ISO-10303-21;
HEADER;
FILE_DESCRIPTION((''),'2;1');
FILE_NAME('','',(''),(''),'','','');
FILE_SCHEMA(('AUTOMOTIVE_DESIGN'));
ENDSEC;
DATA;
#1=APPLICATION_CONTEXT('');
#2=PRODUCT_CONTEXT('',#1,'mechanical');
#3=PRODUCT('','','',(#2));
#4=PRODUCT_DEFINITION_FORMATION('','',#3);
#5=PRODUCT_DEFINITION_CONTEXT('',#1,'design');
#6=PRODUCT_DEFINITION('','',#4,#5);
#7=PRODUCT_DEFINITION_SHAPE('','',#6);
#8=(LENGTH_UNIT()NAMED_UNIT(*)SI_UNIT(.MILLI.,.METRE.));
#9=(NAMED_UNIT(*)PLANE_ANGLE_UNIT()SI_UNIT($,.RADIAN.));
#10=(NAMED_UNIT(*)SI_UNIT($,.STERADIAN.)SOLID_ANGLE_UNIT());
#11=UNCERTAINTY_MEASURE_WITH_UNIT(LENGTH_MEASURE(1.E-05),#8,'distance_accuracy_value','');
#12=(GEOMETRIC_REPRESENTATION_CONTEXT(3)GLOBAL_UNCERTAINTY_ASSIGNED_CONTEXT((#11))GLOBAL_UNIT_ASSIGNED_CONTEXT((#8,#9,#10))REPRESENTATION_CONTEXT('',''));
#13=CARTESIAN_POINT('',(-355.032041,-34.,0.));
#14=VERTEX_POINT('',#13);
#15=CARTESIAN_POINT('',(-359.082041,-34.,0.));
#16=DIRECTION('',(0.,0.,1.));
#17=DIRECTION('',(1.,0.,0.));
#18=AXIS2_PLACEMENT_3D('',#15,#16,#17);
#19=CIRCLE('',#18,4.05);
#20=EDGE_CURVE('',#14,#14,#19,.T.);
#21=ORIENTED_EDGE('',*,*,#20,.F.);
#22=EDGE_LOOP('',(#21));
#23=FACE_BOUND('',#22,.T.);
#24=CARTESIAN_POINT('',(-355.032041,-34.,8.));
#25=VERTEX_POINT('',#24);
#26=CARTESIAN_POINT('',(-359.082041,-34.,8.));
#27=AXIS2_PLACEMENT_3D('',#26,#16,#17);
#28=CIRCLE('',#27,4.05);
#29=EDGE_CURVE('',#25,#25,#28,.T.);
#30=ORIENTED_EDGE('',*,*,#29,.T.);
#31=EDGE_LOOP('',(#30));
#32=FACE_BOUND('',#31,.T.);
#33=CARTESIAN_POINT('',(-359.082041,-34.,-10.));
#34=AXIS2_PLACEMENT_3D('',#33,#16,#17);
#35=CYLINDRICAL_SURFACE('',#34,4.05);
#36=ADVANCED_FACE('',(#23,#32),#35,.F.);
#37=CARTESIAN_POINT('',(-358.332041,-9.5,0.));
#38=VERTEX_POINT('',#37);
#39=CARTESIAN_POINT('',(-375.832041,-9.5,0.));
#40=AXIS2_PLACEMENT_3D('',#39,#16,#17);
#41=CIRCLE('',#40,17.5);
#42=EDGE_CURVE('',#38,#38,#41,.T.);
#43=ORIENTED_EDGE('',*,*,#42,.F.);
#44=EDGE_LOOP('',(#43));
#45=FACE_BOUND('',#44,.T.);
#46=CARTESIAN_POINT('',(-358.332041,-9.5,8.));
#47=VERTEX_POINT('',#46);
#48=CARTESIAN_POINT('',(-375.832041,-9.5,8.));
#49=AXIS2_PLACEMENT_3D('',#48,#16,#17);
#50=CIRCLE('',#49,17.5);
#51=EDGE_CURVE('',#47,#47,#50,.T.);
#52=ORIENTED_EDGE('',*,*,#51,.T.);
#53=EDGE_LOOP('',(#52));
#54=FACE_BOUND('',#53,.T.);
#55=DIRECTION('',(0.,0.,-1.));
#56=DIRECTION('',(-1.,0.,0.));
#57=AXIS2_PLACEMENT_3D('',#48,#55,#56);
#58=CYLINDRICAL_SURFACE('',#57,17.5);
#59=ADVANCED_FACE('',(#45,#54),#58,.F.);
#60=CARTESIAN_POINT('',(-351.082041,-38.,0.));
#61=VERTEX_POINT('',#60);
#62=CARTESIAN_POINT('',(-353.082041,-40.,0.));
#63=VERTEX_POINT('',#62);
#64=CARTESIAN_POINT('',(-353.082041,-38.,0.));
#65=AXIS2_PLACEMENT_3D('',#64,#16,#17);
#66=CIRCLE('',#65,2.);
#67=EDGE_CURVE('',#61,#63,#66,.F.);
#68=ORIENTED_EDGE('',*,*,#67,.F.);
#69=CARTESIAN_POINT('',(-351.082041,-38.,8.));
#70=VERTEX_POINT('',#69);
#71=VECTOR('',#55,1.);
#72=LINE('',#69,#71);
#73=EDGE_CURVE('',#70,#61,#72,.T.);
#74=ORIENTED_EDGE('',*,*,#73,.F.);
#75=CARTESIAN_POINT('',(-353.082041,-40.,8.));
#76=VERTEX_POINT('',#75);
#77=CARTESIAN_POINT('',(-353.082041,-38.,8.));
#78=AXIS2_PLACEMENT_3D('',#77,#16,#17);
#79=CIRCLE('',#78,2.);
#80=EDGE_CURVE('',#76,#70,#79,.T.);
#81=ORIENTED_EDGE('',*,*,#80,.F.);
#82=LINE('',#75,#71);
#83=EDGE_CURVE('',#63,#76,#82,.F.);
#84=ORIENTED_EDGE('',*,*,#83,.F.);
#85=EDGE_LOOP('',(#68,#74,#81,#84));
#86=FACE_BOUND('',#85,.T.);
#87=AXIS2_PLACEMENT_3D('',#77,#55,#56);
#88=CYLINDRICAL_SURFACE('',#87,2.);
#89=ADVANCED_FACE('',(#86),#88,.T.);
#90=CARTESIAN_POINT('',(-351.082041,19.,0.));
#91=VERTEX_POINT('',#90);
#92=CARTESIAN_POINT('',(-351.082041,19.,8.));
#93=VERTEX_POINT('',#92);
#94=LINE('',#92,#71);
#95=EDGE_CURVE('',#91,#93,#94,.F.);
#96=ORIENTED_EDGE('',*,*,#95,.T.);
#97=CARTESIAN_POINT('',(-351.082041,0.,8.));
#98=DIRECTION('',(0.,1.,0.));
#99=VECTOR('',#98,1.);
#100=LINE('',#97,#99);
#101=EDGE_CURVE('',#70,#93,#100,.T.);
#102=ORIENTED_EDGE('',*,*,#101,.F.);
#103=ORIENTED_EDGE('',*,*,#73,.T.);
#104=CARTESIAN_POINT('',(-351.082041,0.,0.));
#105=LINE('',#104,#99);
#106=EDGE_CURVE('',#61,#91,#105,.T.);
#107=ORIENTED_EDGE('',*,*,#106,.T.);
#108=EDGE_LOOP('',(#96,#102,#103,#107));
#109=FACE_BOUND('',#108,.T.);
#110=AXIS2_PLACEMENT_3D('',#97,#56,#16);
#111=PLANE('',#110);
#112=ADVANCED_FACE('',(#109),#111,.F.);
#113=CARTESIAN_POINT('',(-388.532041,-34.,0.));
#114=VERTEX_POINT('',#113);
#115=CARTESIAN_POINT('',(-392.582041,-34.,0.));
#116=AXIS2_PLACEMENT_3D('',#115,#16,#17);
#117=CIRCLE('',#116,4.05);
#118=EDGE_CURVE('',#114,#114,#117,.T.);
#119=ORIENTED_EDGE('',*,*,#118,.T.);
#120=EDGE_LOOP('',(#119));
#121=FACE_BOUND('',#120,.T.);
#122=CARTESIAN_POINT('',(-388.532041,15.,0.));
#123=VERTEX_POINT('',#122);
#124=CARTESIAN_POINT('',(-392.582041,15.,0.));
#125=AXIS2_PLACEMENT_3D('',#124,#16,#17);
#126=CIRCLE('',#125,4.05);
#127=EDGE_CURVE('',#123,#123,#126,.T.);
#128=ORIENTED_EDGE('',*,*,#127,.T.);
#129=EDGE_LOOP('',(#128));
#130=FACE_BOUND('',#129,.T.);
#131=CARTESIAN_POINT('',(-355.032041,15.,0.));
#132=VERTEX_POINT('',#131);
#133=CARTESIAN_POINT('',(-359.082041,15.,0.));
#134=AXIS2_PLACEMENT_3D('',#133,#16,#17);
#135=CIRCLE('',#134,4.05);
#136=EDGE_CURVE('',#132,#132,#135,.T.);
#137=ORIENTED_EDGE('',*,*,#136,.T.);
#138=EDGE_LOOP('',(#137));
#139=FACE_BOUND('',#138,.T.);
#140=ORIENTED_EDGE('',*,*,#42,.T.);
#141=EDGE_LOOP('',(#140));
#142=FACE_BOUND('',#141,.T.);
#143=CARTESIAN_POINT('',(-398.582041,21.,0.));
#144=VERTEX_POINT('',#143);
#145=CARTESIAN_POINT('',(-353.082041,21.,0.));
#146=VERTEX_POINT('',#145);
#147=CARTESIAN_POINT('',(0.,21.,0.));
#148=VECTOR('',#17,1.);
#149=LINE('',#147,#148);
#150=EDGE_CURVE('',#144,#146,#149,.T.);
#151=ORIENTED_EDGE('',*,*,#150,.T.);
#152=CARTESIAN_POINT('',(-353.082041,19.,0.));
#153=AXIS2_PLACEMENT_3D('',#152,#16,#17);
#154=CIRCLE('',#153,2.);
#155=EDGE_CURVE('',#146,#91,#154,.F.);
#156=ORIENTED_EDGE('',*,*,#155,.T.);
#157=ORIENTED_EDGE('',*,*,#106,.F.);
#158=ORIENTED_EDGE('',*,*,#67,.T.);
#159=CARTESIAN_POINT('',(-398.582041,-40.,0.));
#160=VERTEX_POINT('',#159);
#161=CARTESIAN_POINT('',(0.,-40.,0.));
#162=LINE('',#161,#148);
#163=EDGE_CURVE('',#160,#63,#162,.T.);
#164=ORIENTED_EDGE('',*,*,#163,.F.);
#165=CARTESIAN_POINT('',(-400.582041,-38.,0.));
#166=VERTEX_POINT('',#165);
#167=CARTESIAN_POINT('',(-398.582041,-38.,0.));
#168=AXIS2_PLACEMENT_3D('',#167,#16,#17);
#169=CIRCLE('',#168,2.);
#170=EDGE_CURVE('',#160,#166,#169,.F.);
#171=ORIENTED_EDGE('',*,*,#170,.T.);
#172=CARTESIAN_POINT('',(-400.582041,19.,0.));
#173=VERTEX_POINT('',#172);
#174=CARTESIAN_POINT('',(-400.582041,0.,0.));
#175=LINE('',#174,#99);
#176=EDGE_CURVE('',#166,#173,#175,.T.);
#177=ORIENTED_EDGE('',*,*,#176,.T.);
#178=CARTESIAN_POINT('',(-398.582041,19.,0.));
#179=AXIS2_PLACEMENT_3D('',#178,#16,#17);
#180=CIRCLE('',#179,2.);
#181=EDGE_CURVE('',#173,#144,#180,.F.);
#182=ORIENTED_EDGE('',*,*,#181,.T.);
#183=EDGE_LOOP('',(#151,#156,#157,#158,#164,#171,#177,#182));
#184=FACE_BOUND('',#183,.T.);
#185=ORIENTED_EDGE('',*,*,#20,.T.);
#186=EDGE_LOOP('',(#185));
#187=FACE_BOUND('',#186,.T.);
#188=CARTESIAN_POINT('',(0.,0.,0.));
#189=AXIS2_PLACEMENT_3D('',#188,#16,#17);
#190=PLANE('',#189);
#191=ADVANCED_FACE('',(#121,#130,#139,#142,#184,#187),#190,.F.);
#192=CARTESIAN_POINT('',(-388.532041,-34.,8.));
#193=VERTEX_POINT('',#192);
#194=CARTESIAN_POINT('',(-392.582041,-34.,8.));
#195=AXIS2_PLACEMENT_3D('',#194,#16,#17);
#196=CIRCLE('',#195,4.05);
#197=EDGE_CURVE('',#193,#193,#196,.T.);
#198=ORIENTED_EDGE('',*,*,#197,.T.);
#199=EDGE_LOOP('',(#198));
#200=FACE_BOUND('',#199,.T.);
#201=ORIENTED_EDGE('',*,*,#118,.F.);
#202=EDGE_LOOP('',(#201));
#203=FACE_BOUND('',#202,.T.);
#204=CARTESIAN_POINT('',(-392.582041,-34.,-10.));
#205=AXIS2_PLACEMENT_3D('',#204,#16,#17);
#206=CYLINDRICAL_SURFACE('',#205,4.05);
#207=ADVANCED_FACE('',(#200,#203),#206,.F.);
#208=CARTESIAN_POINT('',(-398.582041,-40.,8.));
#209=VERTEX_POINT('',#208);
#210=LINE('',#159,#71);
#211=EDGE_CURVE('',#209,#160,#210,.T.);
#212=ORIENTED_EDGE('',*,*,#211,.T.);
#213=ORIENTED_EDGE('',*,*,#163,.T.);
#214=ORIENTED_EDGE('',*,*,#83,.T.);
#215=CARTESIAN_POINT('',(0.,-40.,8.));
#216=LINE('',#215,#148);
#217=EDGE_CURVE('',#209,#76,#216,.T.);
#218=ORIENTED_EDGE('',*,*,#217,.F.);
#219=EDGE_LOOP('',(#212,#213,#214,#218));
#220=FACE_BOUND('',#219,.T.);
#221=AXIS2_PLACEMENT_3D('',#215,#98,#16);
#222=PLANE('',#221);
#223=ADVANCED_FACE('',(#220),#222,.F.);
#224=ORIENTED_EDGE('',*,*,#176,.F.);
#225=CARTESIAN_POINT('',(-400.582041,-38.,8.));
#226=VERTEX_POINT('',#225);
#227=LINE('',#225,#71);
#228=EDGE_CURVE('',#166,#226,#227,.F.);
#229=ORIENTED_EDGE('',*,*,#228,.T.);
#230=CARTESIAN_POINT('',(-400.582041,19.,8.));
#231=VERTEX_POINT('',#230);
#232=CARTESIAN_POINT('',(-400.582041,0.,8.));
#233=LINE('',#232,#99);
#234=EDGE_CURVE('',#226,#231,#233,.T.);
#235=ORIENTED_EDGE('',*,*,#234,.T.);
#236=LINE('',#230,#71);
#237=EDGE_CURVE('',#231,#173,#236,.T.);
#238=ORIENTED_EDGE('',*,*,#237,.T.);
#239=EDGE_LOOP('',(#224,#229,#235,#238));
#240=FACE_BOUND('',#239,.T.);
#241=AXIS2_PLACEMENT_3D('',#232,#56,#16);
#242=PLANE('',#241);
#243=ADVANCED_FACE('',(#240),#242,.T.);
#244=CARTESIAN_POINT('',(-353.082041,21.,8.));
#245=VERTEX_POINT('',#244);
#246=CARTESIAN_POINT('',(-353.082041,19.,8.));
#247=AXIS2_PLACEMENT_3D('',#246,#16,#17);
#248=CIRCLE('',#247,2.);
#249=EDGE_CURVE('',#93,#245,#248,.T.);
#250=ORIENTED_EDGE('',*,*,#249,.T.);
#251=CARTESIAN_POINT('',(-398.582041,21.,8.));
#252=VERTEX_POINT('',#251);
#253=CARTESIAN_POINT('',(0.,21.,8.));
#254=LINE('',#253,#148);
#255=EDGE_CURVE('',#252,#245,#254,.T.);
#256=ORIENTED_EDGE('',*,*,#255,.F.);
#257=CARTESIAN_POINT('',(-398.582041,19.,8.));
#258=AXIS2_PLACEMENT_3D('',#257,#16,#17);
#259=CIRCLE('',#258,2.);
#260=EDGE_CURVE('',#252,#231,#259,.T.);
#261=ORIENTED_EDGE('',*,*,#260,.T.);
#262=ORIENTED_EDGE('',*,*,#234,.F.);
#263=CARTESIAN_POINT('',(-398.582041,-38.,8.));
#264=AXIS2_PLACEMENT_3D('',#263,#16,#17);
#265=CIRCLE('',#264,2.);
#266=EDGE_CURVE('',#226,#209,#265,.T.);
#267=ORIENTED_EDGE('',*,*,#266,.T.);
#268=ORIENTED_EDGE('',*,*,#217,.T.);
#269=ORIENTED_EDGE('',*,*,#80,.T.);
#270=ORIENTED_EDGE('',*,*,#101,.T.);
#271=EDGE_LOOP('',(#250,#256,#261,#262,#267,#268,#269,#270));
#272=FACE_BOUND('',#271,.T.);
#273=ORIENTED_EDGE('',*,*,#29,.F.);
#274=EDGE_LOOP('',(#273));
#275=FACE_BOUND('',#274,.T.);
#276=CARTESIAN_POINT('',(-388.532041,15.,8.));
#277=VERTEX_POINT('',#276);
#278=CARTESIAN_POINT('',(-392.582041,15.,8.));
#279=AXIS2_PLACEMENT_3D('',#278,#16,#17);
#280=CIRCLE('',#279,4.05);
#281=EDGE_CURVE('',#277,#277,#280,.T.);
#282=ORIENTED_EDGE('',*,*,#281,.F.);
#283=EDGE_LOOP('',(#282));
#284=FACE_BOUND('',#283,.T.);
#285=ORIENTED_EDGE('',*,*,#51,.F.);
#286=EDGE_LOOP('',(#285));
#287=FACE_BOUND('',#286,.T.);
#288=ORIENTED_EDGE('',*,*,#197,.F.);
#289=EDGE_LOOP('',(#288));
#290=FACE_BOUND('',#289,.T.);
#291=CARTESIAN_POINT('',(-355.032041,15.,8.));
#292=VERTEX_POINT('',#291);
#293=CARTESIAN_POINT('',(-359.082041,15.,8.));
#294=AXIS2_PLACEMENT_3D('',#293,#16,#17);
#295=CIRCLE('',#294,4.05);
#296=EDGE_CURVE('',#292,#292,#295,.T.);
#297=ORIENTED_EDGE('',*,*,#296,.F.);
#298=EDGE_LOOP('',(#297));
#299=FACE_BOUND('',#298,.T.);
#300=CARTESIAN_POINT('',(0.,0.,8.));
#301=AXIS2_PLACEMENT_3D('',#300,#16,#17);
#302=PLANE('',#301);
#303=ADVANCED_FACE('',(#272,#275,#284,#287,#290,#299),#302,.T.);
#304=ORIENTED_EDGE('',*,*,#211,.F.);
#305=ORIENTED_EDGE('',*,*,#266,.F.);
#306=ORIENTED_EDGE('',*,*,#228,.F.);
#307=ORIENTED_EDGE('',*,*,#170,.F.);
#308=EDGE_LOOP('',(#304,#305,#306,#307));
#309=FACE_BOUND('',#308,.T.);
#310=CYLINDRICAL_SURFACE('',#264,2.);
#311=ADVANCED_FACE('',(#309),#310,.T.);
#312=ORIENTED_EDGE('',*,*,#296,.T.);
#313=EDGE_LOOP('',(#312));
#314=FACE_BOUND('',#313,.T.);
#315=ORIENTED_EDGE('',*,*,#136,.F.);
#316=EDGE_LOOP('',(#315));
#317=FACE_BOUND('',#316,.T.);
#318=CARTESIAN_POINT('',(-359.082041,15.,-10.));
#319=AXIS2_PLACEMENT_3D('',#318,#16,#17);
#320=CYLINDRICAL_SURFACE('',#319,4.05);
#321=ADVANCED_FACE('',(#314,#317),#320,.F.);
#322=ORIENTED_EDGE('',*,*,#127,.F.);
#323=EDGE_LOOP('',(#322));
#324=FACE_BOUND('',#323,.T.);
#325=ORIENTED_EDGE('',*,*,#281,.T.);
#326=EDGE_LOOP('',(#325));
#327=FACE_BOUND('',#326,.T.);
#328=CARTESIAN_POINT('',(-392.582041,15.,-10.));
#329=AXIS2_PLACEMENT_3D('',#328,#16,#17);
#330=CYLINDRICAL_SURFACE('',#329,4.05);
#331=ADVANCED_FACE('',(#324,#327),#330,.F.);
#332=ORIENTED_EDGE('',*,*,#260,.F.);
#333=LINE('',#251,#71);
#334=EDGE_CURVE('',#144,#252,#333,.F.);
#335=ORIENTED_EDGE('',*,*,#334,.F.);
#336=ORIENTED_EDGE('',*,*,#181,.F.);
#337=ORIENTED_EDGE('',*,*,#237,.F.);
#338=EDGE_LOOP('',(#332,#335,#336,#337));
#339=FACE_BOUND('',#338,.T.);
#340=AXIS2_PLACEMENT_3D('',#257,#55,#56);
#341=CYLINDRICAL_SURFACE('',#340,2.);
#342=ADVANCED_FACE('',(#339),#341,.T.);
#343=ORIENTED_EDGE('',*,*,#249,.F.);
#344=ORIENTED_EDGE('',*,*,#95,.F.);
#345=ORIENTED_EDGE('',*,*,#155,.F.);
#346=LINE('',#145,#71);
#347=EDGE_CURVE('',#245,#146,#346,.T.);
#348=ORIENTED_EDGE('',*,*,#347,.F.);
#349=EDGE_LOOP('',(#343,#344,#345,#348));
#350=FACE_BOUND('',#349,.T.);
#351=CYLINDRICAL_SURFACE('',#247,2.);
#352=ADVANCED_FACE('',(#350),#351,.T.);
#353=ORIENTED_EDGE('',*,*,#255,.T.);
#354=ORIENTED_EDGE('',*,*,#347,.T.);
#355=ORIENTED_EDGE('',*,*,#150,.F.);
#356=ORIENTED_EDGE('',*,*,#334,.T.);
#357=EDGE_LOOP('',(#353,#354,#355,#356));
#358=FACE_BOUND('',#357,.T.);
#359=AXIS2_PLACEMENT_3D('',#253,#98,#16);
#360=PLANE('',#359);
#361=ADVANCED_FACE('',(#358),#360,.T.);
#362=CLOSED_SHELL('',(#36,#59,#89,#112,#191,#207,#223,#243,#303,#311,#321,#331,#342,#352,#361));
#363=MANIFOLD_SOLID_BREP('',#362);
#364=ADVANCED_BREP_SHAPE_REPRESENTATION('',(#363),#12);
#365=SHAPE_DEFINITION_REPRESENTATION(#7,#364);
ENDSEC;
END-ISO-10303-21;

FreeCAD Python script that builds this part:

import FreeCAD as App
import Part
import Sketcher


def edges_at(feature, points):
    """Names of the edges that pass closest to the given points."""
    edges = feature.Shape.Edges
    near = lambda p: min(range(len(edges)), key=lambda i: edges[i].distToShape(Part.Vertex(*p))[0])
    return sorted({f"Edge{near(p) + 1}" for p in points})

doc = App.newDocument("Part")
body = doc.addObject("PartDesign::Body", "Body")

# Sketch on XY plane
sketch1 = doc.addObject("Sketcher::SketchObject", "Sketch")
body.addObject(sketch1)
sketch1.AttachmentSupport = (doc.XY_Plane, [""])
sketch1.MapMode = "FlatFace"
sketch1.addGeometry(Part.LineSegment(App.Vector(-401, 21, 0), App.Vector(-401, -40, 0)), False)
sketch1.addGeometry(Part.LineSegment(App.Vector(-401, -40, 0), App.Vector(-351, -40, 0)), False)
sketch1.addGeometry(Part.LineSegment(App.Vector(-351, -40, 0), App.Vector(-351, 21, 0)), False)
sketch1.addGeometry(Part.LineSegment(App.Vector(-351, 21, 0), App.Vector(-401, 21, 0)), False)
sketch1.addGeometry(Part.Circle(App.Vector(-376, -10, 0), App.Vector(0, 0, 1), 18), False)
sketch1.addConstraint(Sketcher.Constraint("Coincident", 0, 2, 1, 1))
sketch1.addConstraint(Sketcher.Constraint("Coincident", 1, 2, 2, 1))
sketch1.addConstraint(Sketcher.Constraint("Coincident", 2, 2, 3, 1))
sketch1.addConstraint(Sketcher.Constraint("Coincident", 3, 2, 0, 1))
sketch1.addConstraint(Sketcher.Constraint("Vertical", 0))
sketch1.addConstraint(Sketcher.Constraint("Horizontal", 1))
sketch1.addConstraint(Sketcher.Constraint("Vertical", 2))
sketch1.addConstraint(Sketcher.Constraint("Horizontal", 3))
sketch1.addConstraint(Sketcher.Constraint("Diameter", 4, 35.0))
sketch1.addConstraint(Sketcher.Constraint("DistanceY", 0, 2, 0, 1, 61.0))
sketch1.addConstraint(Sketcher.Constraint("DistanceX", 1, 1, 1, 2, 49.5))
sketch1.addConstraint(Sketcher.Constraint("DistanceY", 0, 2, -1, 1, 40.0))
sketch1.addConstraint(Sketcher.Constraint("DistanceY", 4, 3, -1, 1, 9.5))
sketch1.addConstraint(Sketcher.Constraint("DistanceX", 0, 2, 4, 3, 24.75))
sketch1.addConstraint(Sketcher.Constraint("DistanceX", 4, 3, -1, 1, 375.832041))
pad1 = doc.addObject("PartDesign::Pad", "Pad")
body.addObject(pad1)
pad1.Profile = sketch1
pad1.Length = 8
doc.recompute()

fillet = doc.addObject("PartDesign::Fillet", "Fillet")
body.addObject(fillet)
fillet.Base = (pad1, edges_at(pad1, [
    (-400.582, -40, 4),
    (-400.582, 21, 4),
    (-351.082, 21, 4),
    (-351.082, -40, 4),
]))
fillet.Radius = 2

# Sketch on XY plane
sketch2 = doc.addObject("Sketcher::SketchObject", "Sketch001")
body.addObject(sketch2)
sketch2.AttachmentSupport = (doc.XY_Plane, [""])
sketch2.MapMode = "FlatFace"
sketch2.AttachmentOffset = App.Placement(App.Vector(0, 0, 10), App.Rotation())
sketch2.addGeometry(Part.Circle(App.Vector(-392.6, -34, 0), App.Vector(0, 0, 1), 4), False)
sketch2.addGeometry(Part.Circle(App.Vector(-392.6, 15, 0), App.Vector(0, 0, 1), 4), False)
sketch2.addGeometry(Part.Circle(App.Vector(-359.1, -34, 0), App.Vector(0, 0, 1), 4), False)
sketch2.addGeometry(Part.Circle(App.Vector(-359.1, 15, 0), App.Vector(0, 0, 1), 4), False)
sketch2.addConstraint(Sketcher.Constraint("Equal", 0, 1))
sketch2.addConstraint(Sketcher.Constraint("Equal", 1, 2))
sketch2.addConstraint(Sketcher.Constraint("Equal", 2, 3))
sketch2.addConstraint(Sketcher.Constraint("Horizontal", 0, 3, 2, 3))
sketch2.addConstraint(Sketcher.Constraint("Horizontal", 1, 3, 3, 3))
sketch2.addConstraint(Sketcher.Constraint("Vertical", 0, 3, 1, 3))
sketch2.addConstraint(Sketcher.Constraint("Vertical", 2, 3, 3, 3))
sketch2.addConstraint(Sketcher.Constraint("Diameter", 0, 8.1))
sketch2.addConstraint(Sketcher.Constraint("DistanceY", 0, 3, -1, 1, 34.0))
sketch2.addConstraint(Sketcher.Constraint("DistanceY", -1, 1, 1, 3, 15.0))
sketch2.addConstraint(Sketcher.Constraint("DistanceX", 0, 3, 2, 3, 33.5))
sketch2.addConstraint(Sketcher.Constraint("DistanceX", 0, 3, -1, 1, 392.582041))
pocket1 = doc.addObject("PartDesign::Pocket", "Pocket")
body.addObject(pocket1)
pocket1.Profile = sketch2
pocket1.Length = 20

doc.recompute()
